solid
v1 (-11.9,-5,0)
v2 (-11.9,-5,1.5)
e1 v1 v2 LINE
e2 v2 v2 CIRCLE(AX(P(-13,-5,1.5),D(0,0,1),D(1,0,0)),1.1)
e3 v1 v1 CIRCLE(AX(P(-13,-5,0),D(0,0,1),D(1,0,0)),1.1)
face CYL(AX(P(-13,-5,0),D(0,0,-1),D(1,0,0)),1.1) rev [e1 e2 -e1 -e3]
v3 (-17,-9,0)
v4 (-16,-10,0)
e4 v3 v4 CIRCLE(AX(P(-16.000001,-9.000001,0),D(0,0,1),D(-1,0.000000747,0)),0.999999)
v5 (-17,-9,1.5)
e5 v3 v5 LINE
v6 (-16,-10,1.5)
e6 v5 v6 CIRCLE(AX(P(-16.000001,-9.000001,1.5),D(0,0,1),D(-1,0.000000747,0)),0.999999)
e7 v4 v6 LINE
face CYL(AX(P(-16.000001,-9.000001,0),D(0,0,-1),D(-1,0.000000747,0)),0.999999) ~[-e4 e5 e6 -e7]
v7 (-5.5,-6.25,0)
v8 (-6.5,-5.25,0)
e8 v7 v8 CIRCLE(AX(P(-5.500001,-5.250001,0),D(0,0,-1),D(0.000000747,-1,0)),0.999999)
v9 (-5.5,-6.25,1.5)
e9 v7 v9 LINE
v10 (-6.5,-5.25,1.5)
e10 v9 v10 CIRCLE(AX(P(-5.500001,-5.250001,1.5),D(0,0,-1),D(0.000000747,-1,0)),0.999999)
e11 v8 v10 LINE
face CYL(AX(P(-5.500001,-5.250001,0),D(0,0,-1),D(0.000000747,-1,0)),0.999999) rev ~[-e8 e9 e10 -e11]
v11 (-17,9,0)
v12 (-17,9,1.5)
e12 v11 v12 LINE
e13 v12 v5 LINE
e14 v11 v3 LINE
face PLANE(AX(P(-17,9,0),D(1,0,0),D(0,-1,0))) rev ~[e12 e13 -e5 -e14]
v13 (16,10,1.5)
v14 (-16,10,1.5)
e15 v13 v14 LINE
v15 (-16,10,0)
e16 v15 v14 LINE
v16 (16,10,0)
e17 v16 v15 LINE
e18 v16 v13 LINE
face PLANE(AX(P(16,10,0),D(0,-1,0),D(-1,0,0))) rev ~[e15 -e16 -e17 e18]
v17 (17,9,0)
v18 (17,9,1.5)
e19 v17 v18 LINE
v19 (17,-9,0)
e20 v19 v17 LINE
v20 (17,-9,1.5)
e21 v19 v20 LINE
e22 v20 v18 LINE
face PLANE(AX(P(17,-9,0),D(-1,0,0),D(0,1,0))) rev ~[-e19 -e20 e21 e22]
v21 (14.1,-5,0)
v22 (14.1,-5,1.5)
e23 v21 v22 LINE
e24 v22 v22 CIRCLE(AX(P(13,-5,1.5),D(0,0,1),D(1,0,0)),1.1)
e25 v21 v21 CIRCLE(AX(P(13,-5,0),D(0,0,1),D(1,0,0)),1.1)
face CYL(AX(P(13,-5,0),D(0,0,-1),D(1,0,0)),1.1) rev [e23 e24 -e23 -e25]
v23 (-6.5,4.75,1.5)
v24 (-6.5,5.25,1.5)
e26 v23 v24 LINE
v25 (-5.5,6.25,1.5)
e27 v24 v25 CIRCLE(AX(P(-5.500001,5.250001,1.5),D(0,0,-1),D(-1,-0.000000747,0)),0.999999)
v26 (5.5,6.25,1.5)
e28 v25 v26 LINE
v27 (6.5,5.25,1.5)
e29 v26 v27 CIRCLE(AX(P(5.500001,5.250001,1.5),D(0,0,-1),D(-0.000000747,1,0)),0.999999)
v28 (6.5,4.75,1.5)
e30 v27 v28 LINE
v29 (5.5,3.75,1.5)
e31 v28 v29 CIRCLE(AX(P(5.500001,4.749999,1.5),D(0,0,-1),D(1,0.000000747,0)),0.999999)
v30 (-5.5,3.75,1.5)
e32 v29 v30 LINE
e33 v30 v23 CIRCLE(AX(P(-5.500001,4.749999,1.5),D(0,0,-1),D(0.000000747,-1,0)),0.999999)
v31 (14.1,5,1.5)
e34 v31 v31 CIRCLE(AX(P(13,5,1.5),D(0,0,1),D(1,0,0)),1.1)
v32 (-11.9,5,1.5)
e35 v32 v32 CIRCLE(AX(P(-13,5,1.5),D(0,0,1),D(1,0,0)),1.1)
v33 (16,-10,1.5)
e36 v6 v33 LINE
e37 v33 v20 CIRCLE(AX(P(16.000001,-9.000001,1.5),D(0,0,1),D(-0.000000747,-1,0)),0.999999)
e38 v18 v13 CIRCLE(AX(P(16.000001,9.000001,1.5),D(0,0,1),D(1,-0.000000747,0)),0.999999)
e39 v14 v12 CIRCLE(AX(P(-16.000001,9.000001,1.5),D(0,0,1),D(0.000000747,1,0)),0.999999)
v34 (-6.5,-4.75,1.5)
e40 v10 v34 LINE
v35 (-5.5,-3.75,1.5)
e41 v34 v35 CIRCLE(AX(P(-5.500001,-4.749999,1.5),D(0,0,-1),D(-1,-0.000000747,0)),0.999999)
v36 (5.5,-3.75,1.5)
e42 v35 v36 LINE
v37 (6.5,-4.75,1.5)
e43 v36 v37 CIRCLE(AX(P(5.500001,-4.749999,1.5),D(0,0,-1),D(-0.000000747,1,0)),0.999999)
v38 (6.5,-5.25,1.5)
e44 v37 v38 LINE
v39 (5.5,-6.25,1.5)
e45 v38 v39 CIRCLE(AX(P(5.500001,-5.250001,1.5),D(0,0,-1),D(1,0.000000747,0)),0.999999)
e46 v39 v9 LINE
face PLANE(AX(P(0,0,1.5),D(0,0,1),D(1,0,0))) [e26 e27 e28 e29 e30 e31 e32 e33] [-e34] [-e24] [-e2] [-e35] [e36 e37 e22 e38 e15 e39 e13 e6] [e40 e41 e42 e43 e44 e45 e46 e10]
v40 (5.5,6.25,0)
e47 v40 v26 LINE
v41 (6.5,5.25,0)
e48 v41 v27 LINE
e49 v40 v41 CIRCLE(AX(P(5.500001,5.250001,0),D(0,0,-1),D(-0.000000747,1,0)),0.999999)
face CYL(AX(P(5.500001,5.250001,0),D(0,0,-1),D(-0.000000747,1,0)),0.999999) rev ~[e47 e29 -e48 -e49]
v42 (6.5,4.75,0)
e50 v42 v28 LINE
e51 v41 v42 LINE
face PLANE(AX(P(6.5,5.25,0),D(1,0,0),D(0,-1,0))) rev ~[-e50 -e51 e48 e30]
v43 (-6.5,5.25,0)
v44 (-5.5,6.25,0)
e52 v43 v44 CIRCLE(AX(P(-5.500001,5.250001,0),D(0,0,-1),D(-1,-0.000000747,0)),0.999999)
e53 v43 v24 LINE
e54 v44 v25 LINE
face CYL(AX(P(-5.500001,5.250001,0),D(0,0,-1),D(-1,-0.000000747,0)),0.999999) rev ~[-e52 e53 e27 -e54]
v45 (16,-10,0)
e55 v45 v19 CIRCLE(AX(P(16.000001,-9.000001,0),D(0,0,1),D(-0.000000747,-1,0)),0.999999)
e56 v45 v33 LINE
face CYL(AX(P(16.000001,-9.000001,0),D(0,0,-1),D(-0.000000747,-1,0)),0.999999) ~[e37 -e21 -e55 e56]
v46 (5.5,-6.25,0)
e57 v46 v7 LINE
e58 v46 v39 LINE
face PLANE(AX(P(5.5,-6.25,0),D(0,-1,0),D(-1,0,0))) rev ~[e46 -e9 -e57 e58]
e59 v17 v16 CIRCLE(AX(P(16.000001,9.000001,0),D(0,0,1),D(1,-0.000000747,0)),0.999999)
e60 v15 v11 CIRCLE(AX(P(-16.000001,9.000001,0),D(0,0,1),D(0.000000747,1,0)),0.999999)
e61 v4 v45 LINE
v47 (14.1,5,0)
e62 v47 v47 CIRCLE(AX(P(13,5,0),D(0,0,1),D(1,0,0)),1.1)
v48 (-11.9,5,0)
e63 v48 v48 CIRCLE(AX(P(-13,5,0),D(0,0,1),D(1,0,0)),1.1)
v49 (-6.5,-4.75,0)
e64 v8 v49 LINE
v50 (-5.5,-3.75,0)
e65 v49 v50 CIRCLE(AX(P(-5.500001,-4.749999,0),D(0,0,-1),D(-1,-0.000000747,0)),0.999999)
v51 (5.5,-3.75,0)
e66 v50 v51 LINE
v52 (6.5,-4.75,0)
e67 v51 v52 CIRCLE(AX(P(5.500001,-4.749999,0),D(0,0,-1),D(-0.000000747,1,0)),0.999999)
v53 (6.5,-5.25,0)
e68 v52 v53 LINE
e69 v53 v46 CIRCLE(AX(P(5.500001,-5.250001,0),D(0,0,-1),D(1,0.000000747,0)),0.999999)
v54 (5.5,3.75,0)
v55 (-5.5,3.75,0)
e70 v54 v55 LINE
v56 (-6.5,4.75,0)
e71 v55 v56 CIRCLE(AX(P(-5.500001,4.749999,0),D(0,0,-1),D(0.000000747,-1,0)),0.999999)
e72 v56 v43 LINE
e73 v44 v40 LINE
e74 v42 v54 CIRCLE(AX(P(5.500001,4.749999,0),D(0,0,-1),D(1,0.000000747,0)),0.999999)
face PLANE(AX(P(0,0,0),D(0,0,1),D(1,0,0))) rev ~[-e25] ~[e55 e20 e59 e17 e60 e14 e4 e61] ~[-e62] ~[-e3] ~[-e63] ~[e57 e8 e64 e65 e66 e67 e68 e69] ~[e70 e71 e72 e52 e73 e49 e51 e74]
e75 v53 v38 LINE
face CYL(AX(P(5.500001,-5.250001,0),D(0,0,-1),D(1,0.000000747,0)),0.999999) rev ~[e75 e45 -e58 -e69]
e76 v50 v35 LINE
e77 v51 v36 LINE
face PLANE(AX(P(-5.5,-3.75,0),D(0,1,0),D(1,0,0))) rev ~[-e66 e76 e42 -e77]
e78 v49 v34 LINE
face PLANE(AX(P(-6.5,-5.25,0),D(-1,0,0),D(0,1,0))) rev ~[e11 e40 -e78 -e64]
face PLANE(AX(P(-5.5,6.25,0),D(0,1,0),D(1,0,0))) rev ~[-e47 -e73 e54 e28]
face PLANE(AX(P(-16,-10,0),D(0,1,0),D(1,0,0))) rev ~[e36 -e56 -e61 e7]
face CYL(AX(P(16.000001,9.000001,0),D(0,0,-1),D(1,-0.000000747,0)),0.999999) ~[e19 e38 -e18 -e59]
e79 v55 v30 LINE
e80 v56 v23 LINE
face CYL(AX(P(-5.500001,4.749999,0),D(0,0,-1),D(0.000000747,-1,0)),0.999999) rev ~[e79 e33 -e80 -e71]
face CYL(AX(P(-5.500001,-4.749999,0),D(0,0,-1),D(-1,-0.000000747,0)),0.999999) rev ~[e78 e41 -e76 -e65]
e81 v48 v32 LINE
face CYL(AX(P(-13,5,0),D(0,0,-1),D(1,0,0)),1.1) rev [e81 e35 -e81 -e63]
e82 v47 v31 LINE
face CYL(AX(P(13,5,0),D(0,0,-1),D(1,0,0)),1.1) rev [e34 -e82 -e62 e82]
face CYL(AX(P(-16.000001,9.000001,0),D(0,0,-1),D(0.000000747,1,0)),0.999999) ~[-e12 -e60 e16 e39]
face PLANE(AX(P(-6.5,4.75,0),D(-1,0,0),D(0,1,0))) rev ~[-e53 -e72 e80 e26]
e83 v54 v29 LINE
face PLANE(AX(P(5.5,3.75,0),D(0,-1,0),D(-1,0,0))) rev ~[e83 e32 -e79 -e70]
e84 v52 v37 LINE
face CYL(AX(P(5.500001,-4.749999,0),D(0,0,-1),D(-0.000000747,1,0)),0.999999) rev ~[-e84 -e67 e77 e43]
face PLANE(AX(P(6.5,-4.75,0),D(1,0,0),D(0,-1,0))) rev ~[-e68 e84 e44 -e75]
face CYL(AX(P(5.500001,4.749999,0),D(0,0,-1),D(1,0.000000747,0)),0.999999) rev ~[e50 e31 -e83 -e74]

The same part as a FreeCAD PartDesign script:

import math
import FreeCAD as App
import Part
import Sketcher

doc = App.newDocument("Part")
params = doc.addObject("Spreadsheet::Sheet", "Params")
for row, (alias, value) in enumerate([
    ("sketch1_radius", "0.999999 mm"),
    ("sketch1_diameter", "2.2 mm"),
    ("sketch1_width", "32 mm"),
    ("sketch1_width2", "11 mm"),
    ("sketch1_height", "18 mm"),
    ("pad1_length", "1.5 mm"),
], start=1):
    params.set(f"A{row}", alias)
    params.set(f"B{row}", "=" + value)
    params.setAlias(f"B{row}", alias)

body = doc.addObject("PartDesign::Body", "Body")

sketch1 = body.newObject("Sketcher::SketchObject", "Sketch")
sketch1.AttachmentSupport = (doc.getObject("XY_Plane"), [""])
sketch1.MapMode = "FlatFace"
sketch1.addGeometry([
    Part.ArcOfCircle(Part.Circle(App.Vector(16.000001, 9.000001, 0), App.Vector(0, 0, 1), 0.999999), math.radians(-0.000043), math.radians(90.000043)),
    Part.LineSegment(App.Vector(16, 10, 0), App.Vector(-16, 10, 0)),
    Part.ArcOfCircle(Part.Circle(App.Vector(-16.000001, 9.000001, 0), App.Vector(0, 0, 1), 0.999999), math.radians(89.999957), math.radians(180.000043)),
    Part.LineSegment(App.Vector(-17, 9, 0), App.Vector(-17, -9, 0)),
    Part.ArcOfCircle(Part.Circle(App.Vector(-16.000001, -9.000001, 0), App.Vector(0, 0, 1), 0.999999), math.radians(179.999957), math.radians(270.000043)),
    Part.LineSegment(App.Vector(-16, -10, 0), App.Vector(16, -10, 0)),
    Part.ArcOfCircle(Part.Circle(App.Vector(16.000001, -9.000001, 0), App.Vector(0, 0, 1), 0.999999), math.radians(-90.000043), math.radians(0.000043)),
    Part.LineSegment(App.Vector(17, -9, 0), App.Vector(17, 9, 0)),
    Part.Circle(App.Vector(-13, -5, 0), App.Vector(0, 0, 1), 1.1),
    Part.LineSegment(App.Vector(5.5, -6.25, 0), App.Vector(-5.5, -6.25, 0)),
    Part.ArcOfCircle(Part.Circle(App.Vector(-5.500001, -5.250001, 0), App.Vector(0, 0, 1), 0.999999), math.radians(179.999957), math.radians(270.000043)),
    Part.LineSegment(App.Vector(-6.5, -5.25, 0), App.Vector(-6.5, -4.75, 0)),
    Part.ArcOfCircle(Part.Circle(App.Vector(-5.500001, -4.749999, 0), App.Vector(0, 0, 1), 0.999999), math.radians(89.999957), math.radians(180.000043)),
    Part.LineSegment(App.Vector(-5.5, -3.75, 0), App.Vector(5.5, -3.75, 0)),
    Part.ArcOfCircle(Part.Circle(App.Vector(5.500001, -4.749999, 0), App.Vector(0, 0, 1), 0.999999), math.radians(-0.000043), math.radians(90.000043)),
    Part.LineSegment(App.Vector(6.5, -4.75, 0), App.Vector(6.5, -5.25, 0)),
    Part.ArcOfCircle(Part.Circle(App.Vector(5.500001, -5.250001, 0), App.Vector(0, 0, 1), 0.999999), math.radians(-90.000043), math.radians(0.000043)),
    Part.Circle(App.Vector(13, -5, 0), App.Vector(0, 0, 1), 1.1),
    Part.Circle(App.Vector(-13, 5, 0), App.Vector(0, 0, 1), 1.1),
    Part.LineSegment(App.Vector(-6.5, 4.75, 0), App.Vector(-6.5, 5.25, 0)),
    Part.ArcOfCircle(Part.Circle(App.Vector(-5.500001, 5.250001, 0), App.Vector(0, 0, 1), 0.999999), math.radians(89.999957), math.radians(180.000043)),
    Part.LineSegment(App.Vector(-5.5, 6.25, 0), App.Vector(5.5, 6.25, 0)),
    Part.ArcOfCircle(Part.Circle(App.Vector(5.500001, 5.250001, 0), App.Vector(0, 0, 1), 0.999999), math.radians(-0.000043), math.radians(90.000043)),
    Part.LineSegment(App.Vector(6.5, 5.25, 0), App.Vector(6.5, 4.75, 0)),
    Part.ArcOfCircle(Part.Circle(App.Vector(5.500001, 4.749999, 0), App.Vector(0, 0, 1), 0.999999), math.radians(-90.000043), math.radians(0.000043)),
    Part.LineSegment(App.Vector(5.5, 3.75, 0), App.Vector(-5.5, 3.75, 0)),
    Part.ArcOfCircle(Part.Circle(App.Vector(-5.500001, 4.749999, 0), App.Vector(0, 0, 1), 0.999999), math.radians(179.999957), math.radians(270.000043)),
    Part.Circle(App.Vector(13, 5, 0), App.Vector(0, 0, 1), 1.1),
], False)
sketch1.addConstraint([
    Sketcher.Constraint("Tangent", 0, 2, 1, 1),
    Sketcher.Constraint("Tangent", 1, 2, 2, 1),
    Sketcher.Constraint("Tangent", 2, 2, 3, 1),
    Sketcher.Constraint("Tangent", 3, 2, 4, 1),
    Sketcher.Constraint("Tangent", 4, 2, 5, 1),
    Sketcher.Constraint("Tangent", 5, 2, 6, 1),
    Sketcher.Constraint("Tangent", 6, 2, 7, 1),
    Sketcher.Constraint("Tangent", 7, 2, 0, 1),
    Sketcher.Constraint("Tangent", 9, 2, 10, 2),
    Sketcher.Constraint("Tangent", 10, 1, 11, 1),
    Sketcher.Constraint("Tangent", 11, 2, 12, 2),
    Sketcher.Constraint("Tangent", 12, 1, 13, 1),
    Sketcher.Constraint("Tangent", 13, 2, 14, 2),
    Sketcher.Constraint("Tangent", 14, 1, 15, 1),
    Sketcher.Constraint("Tangent", 15, 2, 16, 2),
    Sketcher.Constraint("Tangent", 16, 1, 9, 1),
    Sketcher.Constraint("Tangent", 19, 2, 20, 2),
    Sketcher.Constraint("Tangent", 20, 1, 21, 1),
    Sketcher.Constraint("Tangent", 21, 2, 22, 2),
    Sketcher.Constraint("Tangent", 22, 1, 23, 1),
    Sketcher.Constraint("Tangent", 23, 2, 24, 2),
    Sketcher.Constraint("Tangent", 24, 1, 25, 1),
    Sketcher.Constraint("Tangent", 25, 2, 26, 2),
    Sketcher.Constraint("Tangent", 26, 1, 19, 1),
    Sketcher.Constraint("Horizontal", 1),
    Sketcher.Constraint("Vertical", 3),
    Sketcher.Constraint("Horizontal", 5),
    Sketcher.Constraint("Vertical", 7),
    Sketcher.Constraint("Horizontal", 9),
    Sketcher.Constraint("Vertical", 11),
    Sketcher.Constraint("Horizontal", 13),
    Sketcher.Constraint("Vertical", 15),
    Sketcher.Constraint("Vertical", 19),
    Sketcher.Constraint("Horizontal", 21),
    Sketcher.Constraint("Vertical", 23),
    Sketcher.Constraint("Horizontal", 25),
    Sketcher.Constraint("Equal", 0, 2),
    Sketcher.Constraint("Equal", 2, 4),
    Sketcher.Constraint("Equal", 4, 6),
    Sketcher.Constraint("Equal", 6, 10),
    Sketcher.Constraint("Equal", 10, 12),
    Sketcher.Constraint("Equal", 12, 14),
    Sketcher.Constraint("Equal", 14, 16),
    Sketcher.Constraint("Equal", 8, 17),
    Sketcher.Constraint("Equal", 17, 18),
    Sketcher.Constraint("Equal", 16, 20),
    Sketcher.Constraint("Equal", 20, 22),
    Sketcher.Constraint("Equal", 22, 24),
    Sketcher.Constraint("Equal", 24, 26),
    Sketcher.Constraint("Equal", 18, 27),
    Sketcher.Constraint("Symmetric", 0, 3, 4, 3, -1, 1),
    Sketcher.Constraint("Symmetric", 17, 3, 18, 3, -1, 1),
    Sketcher.Constraint("Symmetric", 16, 3, 20, 3, -1, 1),
    Sketcher.Constraint("Symmetric", 12, 3, 24, 3, -1, 1),
    Sketcher.Constraint("Symmetric", 8, 3, 27, 3, -1, 1),
    Sketcher.Constraint("Symmetric", 8, 3, 17, 3, -2),
    Sketcher.Constraint("Vertical", 12, 3, 20, 3),
    Sketcher.Constraint("Radius", 0, 0.999999),
    Sketcher.Constraint("Diameter", 8, 2.2),
    Sketcher.Constraint("DistanceX", 1, 2, 1, 1, 32.0),
    Sketcher.Constraint("DistanceX", 9, 2, 9, 1, 11.0),
    Sketcher.Constraint("DistanceY", 3, 2, 3, 1, 18.0),
    Sketcher.Constraint("DistanceY", 11, 1, 11, 2, 0.5),
    Sketcher.Constraint("DistanceX", 8, 3, -1, 1, 13.0),
    Sketcher.Constraint("DistanceY", 8, 3, -1, 1, 5.0),
    Sketcher.Constraint("DistanceY", 12, 3, 20, 3, 10.0),
])
sketch1.setExpression("Constraints[57]", "Params.sketch1_radius")
sketch1.setExpression("Constraints[58]", "Params.sketch1_diameter")
sketch1.setExpression("Constraints[59]", "Params.sketch1_width")
sketch1.setExpression("Constraints[60]", "Params.sketch1_width2")
sketch1.setExpression("Constraints[61]", "Params.sketch1_height")
pad1 = body.newObject("PartDesign::Pad", "Pad")
pad1.Profile = sketch1
pad1.setExpression("Length", "Params.pad1_length")

doc.recompute()
